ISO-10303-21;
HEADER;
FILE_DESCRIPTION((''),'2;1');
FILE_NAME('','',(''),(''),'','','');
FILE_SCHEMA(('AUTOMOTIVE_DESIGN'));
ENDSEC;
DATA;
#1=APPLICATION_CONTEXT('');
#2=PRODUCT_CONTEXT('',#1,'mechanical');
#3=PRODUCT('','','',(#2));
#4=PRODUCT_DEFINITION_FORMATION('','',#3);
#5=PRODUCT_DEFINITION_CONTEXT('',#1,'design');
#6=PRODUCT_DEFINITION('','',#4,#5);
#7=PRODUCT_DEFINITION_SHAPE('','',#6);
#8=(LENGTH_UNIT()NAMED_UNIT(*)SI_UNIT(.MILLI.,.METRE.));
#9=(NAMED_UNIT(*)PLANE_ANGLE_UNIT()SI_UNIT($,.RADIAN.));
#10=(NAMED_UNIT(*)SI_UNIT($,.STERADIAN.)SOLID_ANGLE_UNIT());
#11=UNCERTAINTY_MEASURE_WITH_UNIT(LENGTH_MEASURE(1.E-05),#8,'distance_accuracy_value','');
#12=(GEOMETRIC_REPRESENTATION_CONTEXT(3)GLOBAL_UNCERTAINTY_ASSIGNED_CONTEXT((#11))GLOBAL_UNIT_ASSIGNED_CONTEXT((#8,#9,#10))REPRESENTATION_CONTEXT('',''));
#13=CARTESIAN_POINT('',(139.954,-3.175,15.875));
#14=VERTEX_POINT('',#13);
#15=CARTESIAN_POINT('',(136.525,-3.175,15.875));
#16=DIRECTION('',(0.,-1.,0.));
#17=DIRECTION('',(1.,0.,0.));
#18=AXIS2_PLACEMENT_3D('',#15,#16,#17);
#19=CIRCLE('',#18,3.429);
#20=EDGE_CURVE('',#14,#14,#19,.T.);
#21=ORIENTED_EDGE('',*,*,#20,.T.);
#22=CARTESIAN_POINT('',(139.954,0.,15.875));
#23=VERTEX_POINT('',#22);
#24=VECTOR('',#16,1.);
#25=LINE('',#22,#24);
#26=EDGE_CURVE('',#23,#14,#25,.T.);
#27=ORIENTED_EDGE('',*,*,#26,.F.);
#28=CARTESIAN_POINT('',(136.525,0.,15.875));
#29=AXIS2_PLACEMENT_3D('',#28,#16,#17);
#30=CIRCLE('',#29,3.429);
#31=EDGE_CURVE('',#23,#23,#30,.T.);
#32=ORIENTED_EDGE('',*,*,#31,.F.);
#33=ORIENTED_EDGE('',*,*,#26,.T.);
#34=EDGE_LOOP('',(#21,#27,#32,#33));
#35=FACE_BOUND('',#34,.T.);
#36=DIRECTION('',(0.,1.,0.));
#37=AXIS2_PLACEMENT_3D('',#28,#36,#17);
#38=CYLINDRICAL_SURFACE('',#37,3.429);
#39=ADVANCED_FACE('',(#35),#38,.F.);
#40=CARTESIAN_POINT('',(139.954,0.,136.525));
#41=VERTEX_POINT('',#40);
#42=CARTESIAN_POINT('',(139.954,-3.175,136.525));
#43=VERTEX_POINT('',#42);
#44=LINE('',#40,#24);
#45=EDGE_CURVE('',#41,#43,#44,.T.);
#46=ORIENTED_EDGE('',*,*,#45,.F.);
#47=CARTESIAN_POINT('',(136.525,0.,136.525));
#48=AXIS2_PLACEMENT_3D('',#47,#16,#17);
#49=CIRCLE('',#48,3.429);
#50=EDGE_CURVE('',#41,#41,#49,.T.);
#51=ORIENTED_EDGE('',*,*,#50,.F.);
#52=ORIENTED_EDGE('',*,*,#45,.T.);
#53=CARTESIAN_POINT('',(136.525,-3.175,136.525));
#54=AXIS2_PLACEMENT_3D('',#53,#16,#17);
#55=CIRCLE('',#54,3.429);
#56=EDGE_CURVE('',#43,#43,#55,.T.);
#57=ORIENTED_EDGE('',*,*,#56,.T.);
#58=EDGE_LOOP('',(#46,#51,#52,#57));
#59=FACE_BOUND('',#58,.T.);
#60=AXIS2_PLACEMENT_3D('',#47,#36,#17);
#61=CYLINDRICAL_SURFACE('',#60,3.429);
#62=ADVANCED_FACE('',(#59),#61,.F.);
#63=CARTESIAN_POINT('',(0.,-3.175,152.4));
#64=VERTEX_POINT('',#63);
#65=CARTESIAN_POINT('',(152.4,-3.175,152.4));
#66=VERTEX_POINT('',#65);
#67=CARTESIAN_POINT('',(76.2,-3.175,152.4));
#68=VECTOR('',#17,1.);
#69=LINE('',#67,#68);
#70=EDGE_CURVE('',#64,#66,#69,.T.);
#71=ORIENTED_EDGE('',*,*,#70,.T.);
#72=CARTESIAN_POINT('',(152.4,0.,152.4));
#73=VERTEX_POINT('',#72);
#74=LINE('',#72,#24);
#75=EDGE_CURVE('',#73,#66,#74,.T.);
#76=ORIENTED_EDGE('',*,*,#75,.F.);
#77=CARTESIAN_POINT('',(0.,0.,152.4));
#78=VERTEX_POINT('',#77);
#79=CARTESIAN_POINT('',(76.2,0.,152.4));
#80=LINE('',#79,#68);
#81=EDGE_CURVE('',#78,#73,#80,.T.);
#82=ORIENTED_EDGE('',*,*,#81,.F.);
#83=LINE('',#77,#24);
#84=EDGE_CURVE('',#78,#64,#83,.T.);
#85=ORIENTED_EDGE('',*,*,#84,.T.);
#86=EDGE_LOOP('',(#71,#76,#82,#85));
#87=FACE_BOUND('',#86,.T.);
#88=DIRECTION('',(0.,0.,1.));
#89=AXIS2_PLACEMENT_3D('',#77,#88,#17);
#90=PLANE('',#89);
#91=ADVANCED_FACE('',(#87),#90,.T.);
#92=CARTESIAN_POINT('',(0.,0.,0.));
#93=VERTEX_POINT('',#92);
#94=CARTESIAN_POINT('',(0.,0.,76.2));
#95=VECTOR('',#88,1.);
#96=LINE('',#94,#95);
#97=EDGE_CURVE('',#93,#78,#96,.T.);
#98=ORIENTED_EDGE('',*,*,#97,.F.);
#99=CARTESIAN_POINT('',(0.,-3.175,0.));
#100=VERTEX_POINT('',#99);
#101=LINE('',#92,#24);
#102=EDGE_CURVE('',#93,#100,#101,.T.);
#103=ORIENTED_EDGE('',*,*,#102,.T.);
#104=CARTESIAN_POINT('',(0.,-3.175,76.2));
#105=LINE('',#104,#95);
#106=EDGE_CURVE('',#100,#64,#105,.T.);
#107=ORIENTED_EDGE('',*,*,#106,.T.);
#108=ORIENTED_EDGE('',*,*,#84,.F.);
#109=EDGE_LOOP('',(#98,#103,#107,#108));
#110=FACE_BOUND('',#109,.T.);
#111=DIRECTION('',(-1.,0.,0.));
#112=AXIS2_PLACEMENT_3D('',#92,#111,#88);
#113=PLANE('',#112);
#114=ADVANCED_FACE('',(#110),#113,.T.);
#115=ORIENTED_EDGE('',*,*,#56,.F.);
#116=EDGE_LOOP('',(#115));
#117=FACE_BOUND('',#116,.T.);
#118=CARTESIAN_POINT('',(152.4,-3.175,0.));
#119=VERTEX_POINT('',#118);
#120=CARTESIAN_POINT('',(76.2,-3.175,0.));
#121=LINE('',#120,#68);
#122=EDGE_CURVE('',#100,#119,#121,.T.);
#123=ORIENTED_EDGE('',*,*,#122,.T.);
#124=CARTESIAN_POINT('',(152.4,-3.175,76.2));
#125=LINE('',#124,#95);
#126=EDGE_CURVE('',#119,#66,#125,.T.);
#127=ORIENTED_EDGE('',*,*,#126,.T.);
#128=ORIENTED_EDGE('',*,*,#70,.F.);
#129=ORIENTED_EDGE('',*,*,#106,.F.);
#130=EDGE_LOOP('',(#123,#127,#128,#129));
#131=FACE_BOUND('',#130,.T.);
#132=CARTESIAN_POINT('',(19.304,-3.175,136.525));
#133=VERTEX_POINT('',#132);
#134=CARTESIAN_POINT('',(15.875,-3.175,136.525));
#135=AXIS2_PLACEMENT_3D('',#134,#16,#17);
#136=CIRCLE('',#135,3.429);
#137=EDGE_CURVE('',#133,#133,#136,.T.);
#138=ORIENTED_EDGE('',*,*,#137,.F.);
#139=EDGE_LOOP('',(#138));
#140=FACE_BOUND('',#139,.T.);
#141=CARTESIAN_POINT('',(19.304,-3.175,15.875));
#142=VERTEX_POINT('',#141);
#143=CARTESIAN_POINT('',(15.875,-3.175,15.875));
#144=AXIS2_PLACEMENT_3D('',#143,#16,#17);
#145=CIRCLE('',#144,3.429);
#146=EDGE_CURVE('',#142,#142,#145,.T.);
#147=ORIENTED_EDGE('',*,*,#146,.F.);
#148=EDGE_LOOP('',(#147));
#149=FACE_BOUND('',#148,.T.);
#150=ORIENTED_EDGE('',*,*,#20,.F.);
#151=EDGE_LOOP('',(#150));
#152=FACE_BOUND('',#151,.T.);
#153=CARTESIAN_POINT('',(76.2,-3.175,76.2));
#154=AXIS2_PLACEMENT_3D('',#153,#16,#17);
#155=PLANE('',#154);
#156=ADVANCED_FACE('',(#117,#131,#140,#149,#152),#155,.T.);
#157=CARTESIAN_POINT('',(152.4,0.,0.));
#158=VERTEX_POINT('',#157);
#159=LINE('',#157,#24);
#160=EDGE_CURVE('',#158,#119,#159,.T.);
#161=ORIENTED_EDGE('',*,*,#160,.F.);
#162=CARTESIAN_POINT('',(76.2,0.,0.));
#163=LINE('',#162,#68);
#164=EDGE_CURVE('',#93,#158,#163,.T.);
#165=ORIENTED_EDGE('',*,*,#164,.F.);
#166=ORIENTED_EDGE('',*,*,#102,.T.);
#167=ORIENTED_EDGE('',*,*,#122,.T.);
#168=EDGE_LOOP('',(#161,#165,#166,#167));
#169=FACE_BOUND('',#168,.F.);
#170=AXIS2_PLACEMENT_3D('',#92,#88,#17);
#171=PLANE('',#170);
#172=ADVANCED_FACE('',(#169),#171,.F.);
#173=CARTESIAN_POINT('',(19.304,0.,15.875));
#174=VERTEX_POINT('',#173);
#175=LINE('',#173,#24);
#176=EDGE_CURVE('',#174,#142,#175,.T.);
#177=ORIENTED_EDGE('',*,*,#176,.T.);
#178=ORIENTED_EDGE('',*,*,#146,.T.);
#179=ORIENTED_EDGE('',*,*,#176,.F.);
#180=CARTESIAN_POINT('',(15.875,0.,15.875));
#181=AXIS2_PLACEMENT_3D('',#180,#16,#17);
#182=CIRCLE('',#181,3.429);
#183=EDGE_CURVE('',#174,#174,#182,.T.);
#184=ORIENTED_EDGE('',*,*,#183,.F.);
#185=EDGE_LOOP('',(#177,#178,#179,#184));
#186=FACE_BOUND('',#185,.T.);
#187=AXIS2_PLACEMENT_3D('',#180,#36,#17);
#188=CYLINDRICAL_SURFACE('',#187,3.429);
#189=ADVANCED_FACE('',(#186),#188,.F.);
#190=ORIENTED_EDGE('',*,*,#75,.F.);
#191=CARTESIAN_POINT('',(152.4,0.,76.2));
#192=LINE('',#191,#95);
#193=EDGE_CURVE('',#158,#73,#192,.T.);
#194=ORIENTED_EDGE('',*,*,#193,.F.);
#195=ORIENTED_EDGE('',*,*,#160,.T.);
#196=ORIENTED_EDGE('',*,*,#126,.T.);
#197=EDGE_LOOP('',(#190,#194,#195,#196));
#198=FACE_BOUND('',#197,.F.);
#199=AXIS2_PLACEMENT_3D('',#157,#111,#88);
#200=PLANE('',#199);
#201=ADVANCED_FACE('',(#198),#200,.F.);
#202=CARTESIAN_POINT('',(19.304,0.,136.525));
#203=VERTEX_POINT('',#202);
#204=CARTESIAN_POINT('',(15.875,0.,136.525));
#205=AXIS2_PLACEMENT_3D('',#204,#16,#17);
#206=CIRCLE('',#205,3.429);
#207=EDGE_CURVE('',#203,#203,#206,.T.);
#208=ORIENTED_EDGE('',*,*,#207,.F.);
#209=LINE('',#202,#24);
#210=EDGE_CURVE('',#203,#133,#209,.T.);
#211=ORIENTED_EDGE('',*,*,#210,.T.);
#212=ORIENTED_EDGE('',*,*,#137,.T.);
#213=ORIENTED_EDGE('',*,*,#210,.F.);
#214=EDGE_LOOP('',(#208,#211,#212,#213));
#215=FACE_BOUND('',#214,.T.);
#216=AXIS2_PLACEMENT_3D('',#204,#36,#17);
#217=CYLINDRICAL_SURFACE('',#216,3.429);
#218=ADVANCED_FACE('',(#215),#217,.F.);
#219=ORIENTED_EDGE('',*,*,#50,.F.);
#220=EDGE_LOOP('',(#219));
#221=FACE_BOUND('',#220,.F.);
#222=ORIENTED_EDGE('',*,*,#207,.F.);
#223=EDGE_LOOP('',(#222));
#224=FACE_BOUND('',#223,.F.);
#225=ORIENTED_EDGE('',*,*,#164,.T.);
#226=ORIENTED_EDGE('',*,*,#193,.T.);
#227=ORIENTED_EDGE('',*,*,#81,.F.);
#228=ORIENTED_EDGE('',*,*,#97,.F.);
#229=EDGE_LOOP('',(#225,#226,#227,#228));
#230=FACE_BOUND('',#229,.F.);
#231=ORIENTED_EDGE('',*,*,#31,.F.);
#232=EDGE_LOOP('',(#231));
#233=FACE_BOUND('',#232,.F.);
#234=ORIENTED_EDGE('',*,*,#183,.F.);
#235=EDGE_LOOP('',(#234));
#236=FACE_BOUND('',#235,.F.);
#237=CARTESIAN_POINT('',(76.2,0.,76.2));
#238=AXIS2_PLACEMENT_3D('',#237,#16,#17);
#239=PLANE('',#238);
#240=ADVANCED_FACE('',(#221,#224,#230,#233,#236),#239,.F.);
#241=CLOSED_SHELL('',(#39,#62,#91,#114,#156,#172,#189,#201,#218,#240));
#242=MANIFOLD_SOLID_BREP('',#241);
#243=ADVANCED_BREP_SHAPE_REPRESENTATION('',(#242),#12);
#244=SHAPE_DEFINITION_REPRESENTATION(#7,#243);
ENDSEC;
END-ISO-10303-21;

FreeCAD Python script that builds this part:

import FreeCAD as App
import Part
import Sketcher

V = App.Vector
Q = App.Units.Quantity


def add_polygon(sketch, points):
    """Adds a closed chain of lines whose ends are joined by coincident constraints."""
    first, n = sketch.GeometryCount, len(points)
    for a, b in zip(points, points[1:] + points[:1]):
        sketch.addGeometry(Part.LineSegment(App.Vector(*a, 0), App.Vector(*b, 0)), False)
    for i in range(n):
        sketch.addConstraint(Sketcher.Constraint("Coincident", first + i, 2, first + (i + 1) % n, 1))

doc = App.newDocument("Part")
params = doc.addObject("Spreadsheet::Sheet", "Params")
for row, (alias, value) in enumerate([
    ("sketch1_diameter", "0.27 in"),
    ("sketch1_width", "6 in"),
    ("pad1_length", "0.125 in"),
], start=1):
    params.set(f"A{row}", alias)
    params.set(f"B{row}", "=" + value)
    params.setAlias(f"B{row}", alias)

body = doc.addObject("PartDesign::Body", "Body")

# Sketch on XZ plane
sketch1 = doc.addObject("Sketcher::SketchObject", "Sketch")
body.addObject(sketch1)
sketch1.AttachmentSupport = (doc.XZ_Plane, [""])
sketch1.MapMode = "FlatFace"
add_polygon(sketch1, [(0, 152.4), (0, 0), (152.4, 0), (152.4, 152.4)])  # lines 0-3
sketch1.addGeometry(Part.Circle(V(15.9, 15.9, 0), V(0, 0, 1), 3.4), False)  # 4
sketch1.addGeometry(Part.Circle(V(136.5, 15.9, 0), V(0, 0, 1), 3.4), False)  # 5
sketch1.addGeometry(Part.Circle(V(15.9, 136.5, 0), V(0, 0, 1), 3.4), False)  # 6
sketch1.addGeometry(Part.Circle(V(136.5, 136.5, 0), V(0, 0, 1), 3.4), False)  # 7
sketch1.addConstraint([
    Sketcher.Constraint("Vertical", 0),
    Sketcher.Constraint("Horizontal", 1),
    Sketcher.Constraint("Vertical", 2),
    Sketcher.Constraint("Horizontal", 3),
    Sketcher.Constraint("Coincident", 0, 2, -1, 1),
    Sketcher.Constraint("Equal", 4, 5),
    Sketcher.Constraint("Equal", 5, 6),
    Sketcher.Constraint("Equal", 6, 7),
    Sketcher.Constraint("Horizontal", 4, 3, 5, 3),
    Sketcher.Constraint("Horizontal", 6, 3, 7, 3),
    Sketcher.Constraint("Vertical", 4, 3, 6, 3),
    Sketcher.Constraint("Vertical", 5, 3, 7, 3),
    Sketcher.Constraint("Equal", 3, 0),
    Sketcher.Constraint("Diameter", 4, Q("0.27 in")),
    Sketcher.Constraint("DistanceX", 1, 1, 1, 2, Q("6 in")),
    Sketcher.Constraint("DistanceX", 4, 3, 5, 3, Q("4.75 in")),
    Sketcher.Constraint("DistanceY", 4, 3, 6, 3, Q("4.75 in")),
    Sketcher.Constraint("DistanceX", -1, 1, 4, 3, Q("0.625 in")),
    Sketcher.Constraint("DistanceY", -1, 1, 4, 3, Q("0.625 in")),
])
sketch1.setExpression("Constraints[17]", "Params.sketch1_diameter")
sketch1.setExpression("Constraints[18]", "Params.sketch1_width")
pad1 = doc.addObject("PartDesign::Pad", "Pad")
body.addObject(pad1)
pad1.Profile = sketch1
pad1.setExpression("Length", "Params.pad1_length")

doc.recompute()
